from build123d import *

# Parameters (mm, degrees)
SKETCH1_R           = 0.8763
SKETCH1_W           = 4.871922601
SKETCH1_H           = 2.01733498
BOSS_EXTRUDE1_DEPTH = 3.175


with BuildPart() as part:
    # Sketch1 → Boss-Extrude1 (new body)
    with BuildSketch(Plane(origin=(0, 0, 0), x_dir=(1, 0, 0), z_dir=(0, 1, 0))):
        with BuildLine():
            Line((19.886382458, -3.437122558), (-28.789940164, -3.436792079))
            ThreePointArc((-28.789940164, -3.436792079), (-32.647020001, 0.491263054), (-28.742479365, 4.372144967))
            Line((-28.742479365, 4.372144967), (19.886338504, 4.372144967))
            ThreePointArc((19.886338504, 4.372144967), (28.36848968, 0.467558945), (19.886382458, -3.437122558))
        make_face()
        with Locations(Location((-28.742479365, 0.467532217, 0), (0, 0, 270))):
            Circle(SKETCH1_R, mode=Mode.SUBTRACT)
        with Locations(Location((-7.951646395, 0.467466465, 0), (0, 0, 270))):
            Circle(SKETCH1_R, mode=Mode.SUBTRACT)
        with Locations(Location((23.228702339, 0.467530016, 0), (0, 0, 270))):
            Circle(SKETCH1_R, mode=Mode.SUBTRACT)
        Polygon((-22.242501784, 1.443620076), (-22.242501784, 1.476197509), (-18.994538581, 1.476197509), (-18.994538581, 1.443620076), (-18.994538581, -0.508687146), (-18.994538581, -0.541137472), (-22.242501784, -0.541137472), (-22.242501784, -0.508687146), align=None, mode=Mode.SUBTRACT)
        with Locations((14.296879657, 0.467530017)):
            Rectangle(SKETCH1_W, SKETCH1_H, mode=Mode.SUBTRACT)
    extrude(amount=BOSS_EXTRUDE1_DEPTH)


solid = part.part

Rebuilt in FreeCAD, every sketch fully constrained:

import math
import FreeCAD as App
import Part
import Sketcher

V = App.Vector
Q = App.Units.Quantity


def add_polygon(sketch, points):
    """Adds a closed chain of lines whose ends are joined by coincident constraints."""
    first, n = sketch.GeometryCount, len(points)
    for a, b in zip(points, points[1:] + points[:1]):
        sketch.addGeometry(Part.LineSegment(App.Vector(*a, 0), App.Vector(*b, 0)), False)
    for i in range(n):
        sketch.addConstraint(Sketcher.Constraint("Coincident", first + i, 2, first + (i + 1) % n, 1))

doc = App.newDocument("Part")
body = doc.addObject("PartDesign::Body", "Body")

sketch1 = doc.addObject("Sketcher::SketchObject", "Sketch")
body.addObject(sketch1)
sketch1.AttachmentSupport = (doc.XZ_Plane, [""])
sketch1.MapMode = "FlatFace"
sketch1.addGeometry(Part.LineSegment(V(-28.8, 3.4, 0), V(19.9, 3.4, 0)), False)
sketch1.addGeometry(Part.ArcOfCircle(Part.Circle(V(23.2, -0.5, 0), V(0, 0, 1), 5.1), math.radians(-131), math.radians(131)), False)
sketch1.addGeometry(Part.LineSegment(V(19.9, -4.4, 0), V(-28.7, -4.4, 0)), False)
sketch1.addGeometry(Part.ArcOfCircle(Part.Circle(V(-28.7, -0.5, 0), V(0, 0, 1), 3.9), math.radians(91), math.radians(270)), False)
sketch1.addGeometry(Part.Circle(V(23.2, -0.5, 0), V(0, 0, 1), 0.9), False)
add_polygon(sketch1, [(11.9, 0.5), (11.9, -1.5), (16.7, -1.5), (16.7, 0.5)])
sketch1.addGeometry(Part.Circle(V(-8, -0.5, 0), V(0, 0, 1), 0.9), False)
add_polygon(sketch1, [(-22.2, -1.5), (-19, -1.5), (-19, 0.5), (-22.2, 0.5)])
sketch1.addGeometry(Part.Circle(V(-28.7, -0.5, 0), V(0, 0, 1), 0.9), False)
sketch1.addConstraint([
    Sketcher.Constraint("Coincident", 0, 2, 1, 2),
    Sketcher.Constraint("Coincident", 1, 1, 2, 1),
    Sketcher.Constraint("Tangent", 2, 2, 3, 2),
    Sketcher.Constraint("Coincident", 3, 1, 0, 1),
    Sketcher.Constraint("Horizontal", 2),
    Sketcher.Constraint("Vertical", 5),
    Sketcher.Constraint("Horizontal", 6),
    Sketcher.Constraint("Vertical", 7),
    Sketcher.Constraint("Horizontal", 8),
    Sketcher.Constraint("Horizontal", 10),
    Sketcher.Constraint("Vertical", 11),
    Sketcher.Constraint("Horizontal", 12),
    Sketcher.Constraint("Vertical", 13),
    Sketcher.Constraint("Coincident", 4, 3, 1, 3),
    Sketcher.Constraint("Coincident", 14, 3, 3, 3),
    Sketcher.Constraint("Equal", 4, 9),
    Sketcher.Constraint("Equal", 9, 14),
    Sketcher.Constraint("Horizontal", 6, 2, 10, 2),
    Sketcher.Constraint("Horizontal", 8, 2, 11, 2),
    Sketcher.Constraint("Diameter", 4, Q("0.069 in")),
    Sketcher.Constraint("Radius", 1, Q("5.139787 mm")),
    Sketcher.Constraint("Radius", 3, Q("3.904613 mm")),
    Sketcher.Constraint("DistanceX", 12, 2, -1, 1, Q("22.242502 mm")),
    Sketcher.Constraint("DistanceX", 3, 1, 10, 2, Q("9.795402 mm")),
    Sketcher.Constraint("DistanceX", 2, 2, 2, 1, Q("48.628818 mm")),
    Sketcher.Constraint("DistanceX", 6, 1, 6, 2, Q("4.871923 mm")),
    Sketcher.Constraint("DistanceX", 10, 1, 10, 2, Q("3.247963 mm")),
    Sketcher.Constraint("DistanceY", 5, 2, 5, 1, Q("2.017335 mm")),
    Sketcher.Constraint("DistanceY", 1, 3, -1, 1, Q("0.46753 mm")),
    Sketcher.Constraint("DistanceX", 3, 3, -1, 1, Q("28.742479 mm")),
    Sketcher.Constraint("DistanceX", -1, 1, 5, 2, Q("11.860918 mm")),
    Sketcher.Constraint("DistanceX", 3, 3, 1, 3, Q("51.971182 mm")),
    Sketcher.Constraint("DistanceX", 9, 3, 4, 3, Q("31.180349 mm")),
    Sketcher.Constraint("DistanceX", 0, 2, 4, 3, Q("3.34232 mm")),
    Sketcher.Constraint("DistanceY", 9, 3, 0, 2, Q("3.904589 mm")),
    Sketcher.Constraint("DistanceY", 5, 2, 0, 2, Q("4.91332 mm")),
])
pad1 = doc.addObject("PartDesign::Pad", "Pad")
body.addObject(pad1)
pad1.Profile = sketch1
pad1.Length = Q("0.125 in")
pad1.Reversed = True

doc.recompute()
